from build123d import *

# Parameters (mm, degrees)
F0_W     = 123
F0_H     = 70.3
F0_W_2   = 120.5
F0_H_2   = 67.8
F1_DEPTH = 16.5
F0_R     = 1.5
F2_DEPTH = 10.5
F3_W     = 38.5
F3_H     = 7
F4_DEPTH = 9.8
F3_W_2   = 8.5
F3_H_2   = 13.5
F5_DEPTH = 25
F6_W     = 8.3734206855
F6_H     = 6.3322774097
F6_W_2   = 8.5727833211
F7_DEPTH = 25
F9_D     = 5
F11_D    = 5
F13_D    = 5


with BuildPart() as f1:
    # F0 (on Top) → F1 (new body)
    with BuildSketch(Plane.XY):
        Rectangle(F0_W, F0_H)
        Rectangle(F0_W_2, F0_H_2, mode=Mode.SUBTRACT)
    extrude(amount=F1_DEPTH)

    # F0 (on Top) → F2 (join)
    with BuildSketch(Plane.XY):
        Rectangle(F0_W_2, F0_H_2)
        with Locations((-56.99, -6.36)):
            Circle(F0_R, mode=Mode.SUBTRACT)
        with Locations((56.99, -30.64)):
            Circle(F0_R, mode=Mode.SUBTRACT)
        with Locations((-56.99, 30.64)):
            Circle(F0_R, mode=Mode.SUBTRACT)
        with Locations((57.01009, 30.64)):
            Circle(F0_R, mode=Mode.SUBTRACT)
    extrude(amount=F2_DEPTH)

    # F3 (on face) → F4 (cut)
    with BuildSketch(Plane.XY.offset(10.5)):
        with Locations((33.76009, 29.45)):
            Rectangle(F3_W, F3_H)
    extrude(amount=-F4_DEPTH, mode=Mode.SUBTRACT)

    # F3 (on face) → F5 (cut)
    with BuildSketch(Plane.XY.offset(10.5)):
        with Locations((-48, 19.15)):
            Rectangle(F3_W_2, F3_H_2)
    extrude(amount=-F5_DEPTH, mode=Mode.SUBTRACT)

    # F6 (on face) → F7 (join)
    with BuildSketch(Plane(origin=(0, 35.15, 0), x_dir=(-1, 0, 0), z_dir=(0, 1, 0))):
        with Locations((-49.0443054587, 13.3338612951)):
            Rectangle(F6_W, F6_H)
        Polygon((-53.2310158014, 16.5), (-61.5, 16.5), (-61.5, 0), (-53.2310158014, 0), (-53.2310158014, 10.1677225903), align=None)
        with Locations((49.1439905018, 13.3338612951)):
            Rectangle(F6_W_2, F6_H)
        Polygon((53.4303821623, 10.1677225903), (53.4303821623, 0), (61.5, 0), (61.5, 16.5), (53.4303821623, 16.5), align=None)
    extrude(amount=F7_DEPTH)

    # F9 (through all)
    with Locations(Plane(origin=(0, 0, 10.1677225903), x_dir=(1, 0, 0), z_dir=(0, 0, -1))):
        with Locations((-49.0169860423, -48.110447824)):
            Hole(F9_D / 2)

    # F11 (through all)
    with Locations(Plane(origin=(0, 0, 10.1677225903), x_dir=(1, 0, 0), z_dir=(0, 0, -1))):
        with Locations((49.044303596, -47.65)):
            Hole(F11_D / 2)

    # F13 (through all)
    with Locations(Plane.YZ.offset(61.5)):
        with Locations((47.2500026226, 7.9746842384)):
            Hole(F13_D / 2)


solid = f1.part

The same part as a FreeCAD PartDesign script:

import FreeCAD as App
import Part
import Sketcher
from FreeCAD import Vector


def add_polygon(sketch, points):
    """Adds a closed chain of lines whose ends are joined by coincident constraints."""
    first, n = sketch.GeometryCount, len(points)
    for a, b in zip(points, points[1:] + points[:1]):
        sketch.addGeometry(Part.LineSegment(App.Vector(*a, 0), App.Vector(*b, 0)), False)
    for i in range(n):
        sketch.addConstraint(Sketcher.Constraint("Coincident", first + i, 2, first + (i + 1) % n, 1))

doc = App.newDocument("Part")
body = doc.addObject("PartDesign::Body", "Body")

# Sketch on XY plane
sketch1 = body.newObject("Sketcher::SketchObject", "Sketch")
sketch1.AttachmentSupport = (doc.getObject("XY_Plane"), [""])
sketch1.MapMode = "FlatFace"
add_polygon(sketch1, [(-62, 35), (-62, -35), (62, -35), (62, 35)])  # lines 0-3
add_polygon(sketch1, [(60, -34), (-60, -34), (-60, 34), (60, 34)])  # lines 4-7
sketch1.addConstraint([
    Sketcher.Constraint("Vertical", 0),
    Sketcher.Constraint("Horizontal", 1),
    Sketcher.Constraint("Vertical", 2),
    Sketcher.Constraint("Horizontal", 3),
    Sketcher.Constraint("Horizontal", 4),
    Sketcher.Constraint("Vertical", 5),
    Sketcher.Constraint("Horizontal", 6),
    Sketcher.Constraint("Vertical", 7),
    Sketcher.Constraint("Symmetric", 0, 2, 2, 2, -1, 1),
    Sketcher.Constraint("Symmetric", 4, 2, 6, 2, -1, 1),
    Sketcher.Constraint("DistanceX", 1, 1, 1, 2, 123.0),
    Sketcher.Constraint("DistanceX", 4, 2, 4, 1, 120.5),
    Sketcher.Constraint("DistanceY", 0, 2, 0, 1, 70.3),
    Sketcher.Constraint("DistanceY", 5, 1, 5, 2, 67.8),
])
pad1 = body.newObject("PartDesign::Pad", "Pad")
pad1.Profile = sketch1
pad1.Length = 16.5

# Sketch on XY plane
sketch2 = body.newObject("Sketcher::SketchObject", "Sketch001")
sketch2.AttachmentSupport = (doc.getObject("XY_Plane"), [""])
sketch2.MapMode = "FlatFace"
add_polygon(sketch2, [(-60.2, 33.9), (-60.2, -33.9), (60.2, -33.9), (60.2, 33.9)])  # lines 0-3
sketch2.addGeometry(Part.Circle(Vector(-57, -6.4, 0), Vector(0, 0, 1), 1.5), False)  # 4
sketch2.addGeometry(Part.Circle(Vector(57, -30.6, 0), Vector(0, 0, 1), 1.5), False)  # 5
sketch2.addGeometry(Part.Circle(Vector(-57, 30.6, 0), Vector(0, 0, 1), 1.5), False)  # 6
sketch2.addGeometry(Part.Circle(Vector(57, 30.6, 0), Vector(0, 0, 1), 1.5), False)  # 7
sketch2.addConstraint([
    Sketcher.Constraint("Vertical", 0),
    Sketcher.Constraint("Horizontal", 1),
    Sketcher.Constraint("Vertical", 2),
    Sketcher.Constraint("Horizontal", 3),
    Sketcher.Constraint("Equal", 4, 5),
    Sketcher.Constraint("Equal", 5, 6),
    Sketcher.Constraint("Equal", 6, 7),
    Sketcher.Constraint("Symmetric", 5, 3, 6, 3, -1, 1),
    Sketcher.Constraint("Symmetric", 0, 2, 2, 2, -1, 1),
    Sketcher.Constraint("Horizontal", 6, 3, 7, 3),
    Sketcher.Constraint("Vertical", 4, 3, 6, 3),
    Sketcher.Constraint("Diameter", 4, 3.0),
    Sketcher.Constraint("DistanceX", 1, 1, 1, 2, 120.5),
    Sketcher.Constraint("DistanceY", 0, 2, 0, 1, 67.8),
    Sketcher.Constraint("DistanceY", 4, 3, 6, 3, 37.0),
    Sketcher.Constraint("DistanceX", 4, 3, -1, 1, 56.99),
    Sketcher.Constraint("DistanceY", 4, 3, -1, 1, 6.36),
    Sketcher.Constraint("DistanceX", -1, 1, 7, 3, 57.01009),
])
pad2 = body.newObject("PartDesign::Pad", "Pad001")
pad2.Profile = sketch2
pad2.Length = 10.5

# Sketch on XY plane
sketch3 = body.newObject("Sketcher::SketchObject", "Sketch002")
sketch3.AttachmentSupport = (doc.getObject("XY_Plane"), [""])
sketch3.MapMode = "FlatFace"
sketch3.AttachmentOffset = App.Placement(Vector(0, 0, 10.5), App.Rotation())
add_polygon(sketch3, [(15, 33), (15, 26), (53, 26), (53, 33)])  # lines 0-3
sketch3.addConstraint([
    Sketcher.Constraint("Vertical", 0),
    Sketcher.Constraint("Horizontal", 1),
    Sketcher.Constraint("Vertical", 2),
    Sketcher.Constraint("Horizontal", 3),
    Sketcher.Constraint("DistanceY", 0, 2, 0, 1, 7.0),
    Sketcher.Constraint("DistanceX", 1, 1, 1, 2, 38.5),
    Sketcher.Constraint("DistanceY", -1, 1, 0, 2, 25.95),
    Sketcher.Constraint("DistanceX", -1, 1, 0, 2, 14.51009),
])
pocket1 = body.newObject("PartDesign::Pocket", "Pocket")
pocket1.Profile = sketch3
pocket1.Length = 9.8

# Sketch on XY plane
sketch4 = body.newObject("Sketcher::SketchObject", "Sketch003")
sketch4.AttachmentSupport = (doc.getObject("XY_Plane"), [""])
sketch4.MapMode = "FlatFace"
sketch4.AttachmentOffset = App.Placement(Vector(0, 0, 10.5), App.Rotation())
add_polygon(sketch4, [(-52, 26), (-52, 12), (-44, 12), (-44, 26)])  # lines 0-3
sketch4.addConstraint([
    Sketcher.Constraint("Vertical", 0),
    Sketcher.Constraint("Horizontal", 1),
    Sketcher.Constraint("Vertical", 2),
    Sketcher.Constraint("Horizontal", 3),
    Sketcher.Constraint("DistanceX", 1, 1, 1, 2, 8.5),
    Sketcher.Constraint("DistanceY", 0, 2, 0, 1, 13.5),
    Sketcher.Constraint("DistanceY", -1, 1, 0, 2, 12.4),
    Sketcher.Constraint("DistanceX", 0, 2, -1, 1, 52.25),
])
pocket2 = body.newObject("PartDesign::Pocket", "Pocket001")
pocket2.Profile = sketch4
pocket2.Length = 25

# Sketch on XZ plane
sketch5 = body.newObject("Sketcher::SketchObject", "Sketch004")
sketch5.AttachmentSupport = (doc.getObject("XZ_Plane"), [""])
sketch5.MapMode = "FlatFace"
sketch5.AttachmentOffset = App.Placement(Vector(0, 0, -35.15), App.Rotation())
add_polygon(sketch5, [(53, 10), (45, 10), (45, 16), (53, 16), (62, 16), (62, 0), (53, 0)])  # lines 0-6
add_polygon(sketch5, [(-45, 16), (-45, 10), (-53, 10), (-53, 0), (-62, 0), (-62, 16), (-53, 16)])  # lines 7-13
sketch5.addConstraint([
    Sketcher.Constraint("Horizontal", 0),
    Sketcher.Constraint("Vertical", 1),
    Sketcher.Constraint("Horizontal", 2),
    Sketcher.Constraint("Horizontal", 3),
    Sketcher.Constraint("Vertical", 4),
    Sketcher.Constraint("Horizontal", 5),
    Sketcher.Constraint("Vertical", 6),
    Sketcher.Constraint("Vertical", 7),
    Sketcher.Constraint("Horizontal", 8),
    Sketcher.Constraint("Vertical", 9),
    Sketcher.Constraint("Horizontal", 10),
    Sketcher.Constraint("Vertical", 11),
    Sketcher.Constraint("Horizontal", 12),
    Sketcher.Constraint("Horizontal", 13),
    Sketcher.Constraint("Symmetric", 4, 2, 10, 2, -1, 1),
    Sketcher.Constraint("Symmetric", 0, 2, 7, 2, -2),
    Sketcher.Constraint("PointOnObject", 4, 2, -1),
    Sketcher.Constraint("Horizontal", 3, 2, 11, 2),
    Sketcher.Constraint("Vertical", 2, 2, 5, 2),
    Sketcher.Constraint("Vertical", 9, 2, 12, 2),
    Sketcher.Constraint("DistanceY", 4, 2, 4, 1, 16.5),
    Sketcher.Constraint("DistanceX", -1, 1, 3, 2, 61.5),
    Sketcher.Constraint("DistanceX", 0, 2, 0, 1, 8.373421),
    Sketcher.Constraint("DistanceX", 7, 2, -1, 1, 44.857599),
    Sketcher.Constraint("DistanceX", 8, 2, 8, 1, 8.572783),
    Sketcher.Constraint("DistanceY", 1, 1, 1, 2, 6.332277),
])
pad3 = body.newObject("PartDesign::Pad", "Pad002")
pad3.Profile = sketch5
pad3.Length = 25
pad3.Reversed = True

# Sketch on XY plane
sketch6 = body.newObject("Sketcher::SketchObject", "Sketch005")
sketch6.AttachmentSupport = (doc.getObject("XY_Plane"), [""])
sketch6.MapMode = "FlatFace"
sketch6.AttachmentOffset = App.Placement(Vector(0, 0, 10.167723), App.Rotation())
sketch6.addGeometry(Part.Circle(Vector(-49, 48.1, 0), Vector(0, 0, 1), 2.5), False)
sketch6.addConstraint([
    Sketcher.Constraint("Diameter", 0, 5.0),
    Sketcher.Constraint("DistanceX", 0, 3, -1, 1, 49.016986),
    Sketcher.Constraint("DistanceY", -1, 1, 0, 3, 48.110448),
])
doc.recompute()
hole = body.newObject("PartDesign::Hole", "Hole")
hole.Profile = sketch6
hole.ThreadType = "None"
hole.Diameter = 5
hole.DepthType = "ThroughAll"
hole.Reversed = True

# Sketch on XY plane
sketch7 = body.newObject("Sketcher::SketchObject", "Sketch006")
sketch7.AttachmentSupport = (doc.getObject("XY_Plane"), [""])
sketch7.MapMode = "FlatFace"
sketch7.AttachmentOffset = App.Placement(Vector(0, 0, 10.167723), App.Rotation())
sketch7.addGeometry(Part.Circle(Vector(49, 47.6, 0), Vector(0, 0, 1), 2.5), False)
sketch7.addConstraint([
    Sketcher.Constraint("Diameter", 0, 5.0),
    Sketcher.Constraint("DistanceY", -1, 1, 0, 3, 47.65),
    Sketcher.Constraint("DistanceX", -1, 1, 0, 3, 49.044304),
])
doc.recompute()
hole2 = body.newObject("PartDesign::Hole", "Hole001")
hole2.Profile = sketch7
hole2.ThreadType = "None"
hole2.Diameter = 5
hole2.DepthType = "ThroughAll"
hole2.Reversed = True

# Sketch on YZ plane
sketch8 = body.newObject("Sketcher::SketchObject", "Sketch007")
sketch8.AttachmentSupport = (doc.getObject("YZ_Plane"), [""])
sketch8.MapMode = "FlatFace"
sketch8.AttachmentOffset = App.Placement(Vector(0, 0, 61.5), App.Rotation())
sketch8.addGeometry(Part.Circle(Vector(47.3, 8, 0), Vector(0, 0, 1), 2.5), False)
sketch8.addConstraint([
    Sketcher.Constraint("Diameter", 0, 5.0),
    Sketcher.Constraint("DistanceX", -1, 1, 0, 3, 47.250003),
    Sketcher.Constraint("DistanceY", -1, 1, 0, 3, 7.974684),
])
doc.recompute()
hole3 = body.newObject("PartDesign::Hole", "Hole002")
hole3.Profile = sketch8
hole3.ThreadType = "None"
hole3.Diameter = 5
hole3.DepthType = "ThroughAll"

doc.recompute()
